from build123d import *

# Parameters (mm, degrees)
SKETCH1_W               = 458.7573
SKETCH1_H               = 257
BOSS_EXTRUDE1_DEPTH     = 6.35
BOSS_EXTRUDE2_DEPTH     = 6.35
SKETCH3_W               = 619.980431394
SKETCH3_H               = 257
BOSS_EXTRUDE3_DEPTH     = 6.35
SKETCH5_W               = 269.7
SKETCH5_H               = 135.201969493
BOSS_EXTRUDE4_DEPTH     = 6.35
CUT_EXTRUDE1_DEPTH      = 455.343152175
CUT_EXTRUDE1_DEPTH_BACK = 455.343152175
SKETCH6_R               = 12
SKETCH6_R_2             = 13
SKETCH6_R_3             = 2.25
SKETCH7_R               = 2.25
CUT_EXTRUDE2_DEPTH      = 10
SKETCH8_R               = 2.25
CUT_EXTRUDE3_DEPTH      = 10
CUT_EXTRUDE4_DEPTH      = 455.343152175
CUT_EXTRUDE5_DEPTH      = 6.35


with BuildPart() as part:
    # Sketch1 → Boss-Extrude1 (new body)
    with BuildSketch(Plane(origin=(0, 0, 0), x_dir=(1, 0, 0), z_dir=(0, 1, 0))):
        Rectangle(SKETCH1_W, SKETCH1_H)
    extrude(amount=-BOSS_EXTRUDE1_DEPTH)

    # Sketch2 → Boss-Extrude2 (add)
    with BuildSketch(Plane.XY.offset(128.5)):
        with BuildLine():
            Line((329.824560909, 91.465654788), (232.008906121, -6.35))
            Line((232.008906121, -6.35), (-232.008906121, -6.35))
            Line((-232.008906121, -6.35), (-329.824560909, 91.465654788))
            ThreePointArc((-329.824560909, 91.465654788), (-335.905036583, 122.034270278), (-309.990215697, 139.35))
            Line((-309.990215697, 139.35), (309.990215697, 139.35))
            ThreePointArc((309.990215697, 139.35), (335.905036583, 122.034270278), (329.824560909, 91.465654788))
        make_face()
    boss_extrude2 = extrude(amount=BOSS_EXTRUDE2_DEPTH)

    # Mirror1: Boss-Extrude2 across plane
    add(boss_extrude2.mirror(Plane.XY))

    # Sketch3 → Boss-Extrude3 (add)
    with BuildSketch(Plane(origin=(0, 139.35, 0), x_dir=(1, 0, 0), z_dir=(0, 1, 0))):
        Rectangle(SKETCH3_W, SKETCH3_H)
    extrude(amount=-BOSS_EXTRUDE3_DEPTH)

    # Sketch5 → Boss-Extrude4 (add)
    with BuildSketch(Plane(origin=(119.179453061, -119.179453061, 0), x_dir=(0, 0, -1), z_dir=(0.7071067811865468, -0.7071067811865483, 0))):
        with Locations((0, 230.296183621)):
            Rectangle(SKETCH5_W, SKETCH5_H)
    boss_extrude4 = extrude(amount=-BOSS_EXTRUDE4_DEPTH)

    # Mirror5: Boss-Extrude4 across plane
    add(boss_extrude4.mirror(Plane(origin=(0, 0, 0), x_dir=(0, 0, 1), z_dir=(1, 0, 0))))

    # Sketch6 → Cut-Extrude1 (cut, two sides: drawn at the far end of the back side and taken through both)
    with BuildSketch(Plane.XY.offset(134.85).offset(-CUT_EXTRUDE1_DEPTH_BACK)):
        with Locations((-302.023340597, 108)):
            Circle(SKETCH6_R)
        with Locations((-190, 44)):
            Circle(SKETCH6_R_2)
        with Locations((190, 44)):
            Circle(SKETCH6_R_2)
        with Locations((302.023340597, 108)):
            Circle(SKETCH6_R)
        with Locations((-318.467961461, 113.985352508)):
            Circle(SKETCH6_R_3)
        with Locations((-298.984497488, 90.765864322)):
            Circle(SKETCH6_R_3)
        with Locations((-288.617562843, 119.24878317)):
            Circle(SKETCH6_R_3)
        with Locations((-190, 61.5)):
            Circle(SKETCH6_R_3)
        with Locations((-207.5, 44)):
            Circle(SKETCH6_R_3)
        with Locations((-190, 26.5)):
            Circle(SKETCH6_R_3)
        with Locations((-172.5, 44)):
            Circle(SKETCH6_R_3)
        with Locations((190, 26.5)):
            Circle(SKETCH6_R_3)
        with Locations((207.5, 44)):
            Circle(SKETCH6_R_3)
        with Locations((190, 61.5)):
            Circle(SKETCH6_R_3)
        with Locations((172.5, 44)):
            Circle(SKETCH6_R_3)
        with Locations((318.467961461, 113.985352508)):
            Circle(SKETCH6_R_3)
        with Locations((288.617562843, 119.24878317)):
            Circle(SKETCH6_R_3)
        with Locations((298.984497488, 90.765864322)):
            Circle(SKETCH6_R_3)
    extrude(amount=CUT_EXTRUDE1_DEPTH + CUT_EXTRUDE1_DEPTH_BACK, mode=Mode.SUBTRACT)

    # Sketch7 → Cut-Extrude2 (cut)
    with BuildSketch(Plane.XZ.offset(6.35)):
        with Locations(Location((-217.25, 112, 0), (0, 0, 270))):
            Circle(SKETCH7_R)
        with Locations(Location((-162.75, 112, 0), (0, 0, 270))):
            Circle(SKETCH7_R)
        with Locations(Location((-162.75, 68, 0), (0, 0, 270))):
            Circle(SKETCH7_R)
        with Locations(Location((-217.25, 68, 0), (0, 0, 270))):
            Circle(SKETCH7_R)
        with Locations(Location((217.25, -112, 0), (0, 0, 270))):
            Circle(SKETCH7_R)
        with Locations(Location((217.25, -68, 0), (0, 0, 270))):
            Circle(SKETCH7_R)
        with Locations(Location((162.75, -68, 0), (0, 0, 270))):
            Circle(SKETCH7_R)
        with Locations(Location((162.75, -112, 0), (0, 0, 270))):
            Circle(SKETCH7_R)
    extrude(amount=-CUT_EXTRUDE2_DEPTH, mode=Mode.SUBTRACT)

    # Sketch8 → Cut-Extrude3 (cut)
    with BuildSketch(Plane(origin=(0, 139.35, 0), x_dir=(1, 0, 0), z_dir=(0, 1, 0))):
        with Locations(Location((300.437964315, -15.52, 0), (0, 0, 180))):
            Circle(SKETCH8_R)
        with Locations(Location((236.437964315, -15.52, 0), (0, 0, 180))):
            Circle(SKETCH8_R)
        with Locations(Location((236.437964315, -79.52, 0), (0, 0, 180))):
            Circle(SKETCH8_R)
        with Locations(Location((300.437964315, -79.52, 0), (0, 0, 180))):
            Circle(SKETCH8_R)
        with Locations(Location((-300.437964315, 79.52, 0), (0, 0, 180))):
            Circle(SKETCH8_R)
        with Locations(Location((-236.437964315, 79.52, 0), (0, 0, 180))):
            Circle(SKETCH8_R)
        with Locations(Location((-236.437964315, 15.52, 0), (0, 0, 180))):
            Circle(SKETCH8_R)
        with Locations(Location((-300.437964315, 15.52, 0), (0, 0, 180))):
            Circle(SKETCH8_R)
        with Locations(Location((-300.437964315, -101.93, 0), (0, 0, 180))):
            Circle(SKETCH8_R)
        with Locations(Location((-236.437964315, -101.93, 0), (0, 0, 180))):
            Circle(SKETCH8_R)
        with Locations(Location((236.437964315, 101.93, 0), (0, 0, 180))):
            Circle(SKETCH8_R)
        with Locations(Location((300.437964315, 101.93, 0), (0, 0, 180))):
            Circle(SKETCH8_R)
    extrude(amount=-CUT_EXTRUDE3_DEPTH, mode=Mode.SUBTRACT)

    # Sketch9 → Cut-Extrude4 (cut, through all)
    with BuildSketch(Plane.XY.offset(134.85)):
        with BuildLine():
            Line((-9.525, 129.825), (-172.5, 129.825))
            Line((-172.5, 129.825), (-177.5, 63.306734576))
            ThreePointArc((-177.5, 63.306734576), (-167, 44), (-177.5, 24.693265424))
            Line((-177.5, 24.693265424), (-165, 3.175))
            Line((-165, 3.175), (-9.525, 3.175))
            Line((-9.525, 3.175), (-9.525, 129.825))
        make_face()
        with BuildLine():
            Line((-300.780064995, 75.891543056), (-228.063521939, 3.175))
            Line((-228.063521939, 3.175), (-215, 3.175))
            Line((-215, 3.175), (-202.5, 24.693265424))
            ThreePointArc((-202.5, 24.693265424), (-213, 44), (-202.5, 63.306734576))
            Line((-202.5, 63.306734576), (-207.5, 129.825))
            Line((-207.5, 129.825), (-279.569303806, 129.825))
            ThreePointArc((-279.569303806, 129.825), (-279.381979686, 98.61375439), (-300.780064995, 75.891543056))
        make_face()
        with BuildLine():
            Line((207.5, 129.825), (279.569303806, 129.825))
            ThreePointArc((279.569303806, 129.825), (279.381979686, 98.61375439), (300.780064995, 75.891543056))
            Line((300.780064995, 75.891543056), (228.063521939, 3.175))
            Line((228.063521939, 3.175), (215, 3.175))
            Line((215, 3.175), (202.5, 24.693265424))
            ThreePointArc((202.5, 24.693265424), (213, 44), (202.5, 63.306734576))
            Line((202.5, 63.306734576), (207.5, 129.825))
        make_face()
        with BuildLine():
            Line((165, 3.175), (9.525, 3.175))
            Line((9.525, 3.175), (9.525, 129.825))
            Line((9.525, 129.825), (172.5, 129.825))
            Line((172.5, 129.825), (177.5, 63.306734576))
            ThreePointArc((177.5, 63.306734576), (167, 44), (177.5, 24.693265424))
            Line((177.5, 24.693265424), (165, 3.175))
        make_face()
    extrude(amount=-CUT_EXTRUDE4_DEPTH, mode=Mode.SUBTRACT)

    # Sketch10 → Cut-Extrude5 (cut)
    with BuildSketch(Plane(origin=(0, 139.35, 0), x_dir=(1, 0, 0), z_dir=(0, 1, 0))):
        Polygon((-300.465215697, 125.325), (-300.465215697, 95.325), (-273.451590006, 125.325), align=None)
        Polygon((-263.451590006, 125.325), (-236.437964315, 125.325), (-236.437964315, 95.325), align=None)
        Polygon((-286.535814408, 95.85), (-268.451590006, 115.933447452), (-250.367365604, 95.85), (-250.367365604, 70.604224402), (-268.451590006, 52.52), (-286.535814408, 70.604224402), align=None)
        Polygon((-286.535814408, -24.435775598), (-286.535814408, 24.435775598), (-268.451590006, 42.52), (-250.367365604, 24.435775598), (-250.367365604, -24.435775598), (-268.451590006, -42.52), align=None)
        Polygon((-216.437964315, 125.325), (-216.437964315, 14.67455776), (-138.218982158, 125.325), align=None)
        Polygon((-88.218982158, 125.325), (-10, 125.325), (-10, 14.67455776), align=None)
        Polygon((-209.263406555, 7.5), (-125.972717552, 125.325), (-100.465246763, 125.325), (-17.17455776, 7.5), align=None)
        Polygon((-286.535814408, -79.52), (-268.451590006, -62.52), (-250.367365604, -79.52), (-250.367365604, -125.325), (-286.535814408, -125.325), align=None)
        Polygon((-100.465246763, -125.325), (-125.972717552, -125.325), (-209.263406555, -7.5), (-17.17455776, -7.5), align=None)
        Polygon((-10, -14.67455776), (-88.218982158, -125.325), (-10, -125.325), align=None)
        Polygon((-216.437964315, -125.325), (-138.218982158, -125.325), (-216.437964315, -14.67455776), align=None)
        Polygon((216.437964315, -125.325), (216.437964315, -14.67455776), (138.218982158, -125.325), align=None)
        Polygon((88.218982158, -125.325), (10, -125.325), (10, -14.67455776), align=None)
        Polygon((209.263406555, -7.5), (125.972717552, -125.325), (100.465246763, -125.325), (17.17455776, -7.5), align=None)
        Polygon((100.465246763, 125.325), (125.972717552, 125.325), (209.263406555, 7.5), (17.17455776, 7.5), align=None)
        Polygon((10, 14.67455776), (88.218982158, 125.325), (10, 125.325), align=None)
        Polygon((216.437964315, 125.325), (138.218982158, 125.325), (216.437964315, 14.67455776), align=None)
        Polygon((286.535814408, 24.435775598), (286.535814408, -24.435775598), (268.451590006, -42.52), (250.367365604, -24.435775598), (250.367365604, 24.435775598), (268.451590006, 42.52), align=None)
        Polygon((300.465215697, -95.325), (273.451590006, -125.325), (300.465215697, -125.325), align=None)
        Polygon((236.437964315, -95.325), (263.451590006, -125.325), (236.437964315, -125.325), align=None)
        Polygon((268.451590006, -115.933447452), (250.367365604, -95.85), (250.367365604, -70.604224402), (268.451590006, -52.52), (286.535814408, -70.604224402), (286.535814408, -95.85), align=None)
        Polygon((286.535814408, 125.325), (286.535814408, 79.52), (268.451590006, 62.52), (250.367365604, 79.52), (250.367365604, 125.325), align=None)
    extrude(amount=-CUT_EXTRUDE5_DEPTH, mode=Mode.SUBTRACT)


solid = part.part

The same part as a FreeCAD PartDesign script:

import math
import FreeCAD as App
import Part
import Sketcher

V = App.Vector


def add_polygon(sketch, points):
    """Adds a closed chain of lines whose ends are joined by coincident constraints."""
    first, n = sketch.GeometryCount, len(points)
    for a, b in zip(points, points[1:] + points[:1]):
        sketch.addGeometry(Part.LineSegment(App.Vector(*a, 0), App.Vector(*b, 0)), False)
    for i in range(n):
        sketch.addConstraint(Sketcher.Constraint("Coincident", first + i, 2, first + (i + 1) % n, 1))

doc = App.newDocument("Part")
body = doc.addObject("PartDesign::Body", "Body")

# Sketch on XZ plane
sketch1 = body.newObject("Sketcher::SketchObject", "Sketch")
sketch1.AttachmentSupport = (doc.getObject("XZ_Plane"), [""])
sketch1.MapMode = "FlatFace"
add_polygon(sketch1, [(-229, -128), (-229, 128), (229, 128), (229, -128)])  # lines 0-3
sketch1.addConstraint(Sketcher.Constraint("Vertical", 0))
sketch1.addConstraint(Sketcher.Constraint("Horizontal", 1))
sketch1.addConstraint(Sketcher.Constraint("Vertical", 2))
sketch1.addConstraint(Sketcher.Constraint("Horizontal", 3))
sketch1.addConstraint(Sketcher.Constraint("Symmetric", 0, 2, 2, 2, -1, 1))
sketch1.addConstraint(Sketcher.Constraint("DistanceY", 0, 1, 0, 2, 257.0))
sketch1.addConstraint(Sketcher.Constraint("DistanceX", 1, 1, 1, 2, 458.7573))
pad1 = body.newObject("PartDesign::Pad", "Pad")
pad1.Profile = sketch1
pad1.Length = 6.35

# Sketch on XY plane
sketch2 = body.newObject("Sketcher::SketchObject", "Sketch001")
sketch2.AttachmentSupport = (doc.getObject("XY_Plane"), [""])
sketch2.MapMode = "FlatFace"
sketch2.AttachmentOffset = App.Placement(V(0, 0, 128.5), App.Rotation())
sketch2.addGeometry(Part.LineSegment(V(232, -6, 0), V(330, 91, 0)), False)
sketch2.addGeometry(Part.ArcOfCircle(Part.Circle(V(310, 111, 0), V(0, 0, 1), 28), math.radians(-45), math.radians(90)), False)
sketch2.addGeometry(Part.LineSegment(V(310, 139, 0), V(-310, 139, 0)), False)
sketch2.addGeometry(Part.ArcOfCircle(Part.Circle(V(-310, 111, 0), V(0, 0, 1), 28), math.radians(90), math.radians(225)), False)
sketch2.addGeometry(Part.LineSegment(V(-330, 91, 0), V(-232, -6, 0)), False)
sketch2.addGeometry(Part.LineSegment(V(-232, -6, 0), V(232, -6, 0)), False)
sketch2.addConstraint(Sketcher.Constraint("Tangent", 0, 2, 1, 1))
sketch2.addConstraint(Sketcher.Constraint("Tangent", 1, 2, 2, 1))
sketch2.addConstraint(Sketcher.Constraint("Tangent", 2, 2, 3, 1))
sketch2.addConstraint(Sketcher.Constraint("Tangent", 3, 2, 4, 1))
sketch2.addConstraint(Sketcher.Constraint("Coincident", 4, 2, 5, 1))
sketch2.addConstraint(Sketcher.Constraint("Coincident", 5, 2, 0, 1))
sketch2.addConstraint(Sketcher.Constraint("Horizontal", 2))
sketch2.addConstraint(Sketcher.Constraint("Horizontal", 5))
sketch2.addConstraint(Sketcher.Constraint("Equal", 1, 3))
sketch2.addConstraint(Sketcher.Constraint("Symmetric", 0, 2, 3, 2, -2))
sketch2.addConstraint(Sketcher.Constraint("Perpendicular", 0, 4))
sketch2.addConstraint(Sketcher.Constraint("Radius", 1, 28.05))
sketch2.addConstraint(Sketcher.Constraint("DistanceY", -1, 1, 1, 3, 111.3))
sketch2.addConstraint(Sketcher.Constraint("DistanceY", 4, 2, 2, 2, 145.7))
sketch2.addConstraint(Sketcher.Constraint("DistanceX", 2, 2, 2, 1, 619.980431))
pad2 = body.newObject("PartDesign::Pad", "Pad001")
pad2.Profile = sketch2
pad2.Length = 6.35
doc.recompute()

mirrored = body.newObject("PartDesign::Mirrored", "Mirrored")
mirrored.Originals = [pad2]
mirrored.MirrorPlane = (doc.getObject("XY_Plane"), [""])
body.Tip = mirrored

# Sketch on XZ plane
sketch3 = body.newObject("Sketcher::SketchObject", "Sketch002")
sketch3.AttachmentSupport = (doc.getObject("XZ_Plane"), [""])
sketch3.MapMode = "FlatFace"
sketch3.AttachmentOffset = App.Placement(V(0, 0, -139.35), App.Rotation())
add_polygon(sketch3, [(-310, -128), (-310, 128), (310, 128), (310, -128)])  # lines 0-3
sketch3.addConstraint(Sketcher.Constraint("Vertical", 0))
sketch3.addConstraint(Sketcher.Constraint("Horizontal", 1))
sketch3.addConstraint(Sketcher.Constraint("Vertical", 2))
sketch3.addConstraint(Sketcher.Constraint("Horizontal", 3))
sketch3.addConstraint(Sketcher.Constraint("Symmetric", 0, 2, 2, 2, -1, 1))
sketch3.addConstraint(Sketcher.Constraint("DistanceY", 0, 1, 0, 2, 257.0))
sketch3.addConstraint(Sketcher.Constraint("DistanceX", 1, 1, 1, 2, 619.980431))
pad3 = body.newObject("PartDesign::Pad", "Pad002")
pad3.Profile = sketch3
pad3.Length = 6.35

# Sketch on an angled plane
sketch4 = body.newObject("Sketcher::SketchObject", "Sketch003")
sketch4.Placement = App.Placement(V(119.179453, -119.179453, 0), App.Rotation(V(0, 0, -1), V(0.707106781, 0.707106781, 0), V(0.707106781, -0.707106781, 0), "ZXY"))
add_polygon(sketch4, [(-135, 298), (-135, 163), (135, 163), (135, 298)])  # lines 0-3
sketch4.addConstraint(Sketcher.Constraint("Vertical", 0))
sketch4.addConstraint(Sketcher.Constraint("Horizontal", 1))
sketch4.addConstraint(Sketcher.Constraint("Vertical", 2))
sketch4.addConstraint(Sketcher.Constraint("Horizontal", 3))
sketch4.addConstraint(Sketcher.Constraint("DistanceX", 1, 1, 1, 2, 269.7))
sketch4.addConstraint(Sketcher.Constraint("DistanceX", 0, 2, -1, 1, 134.85))
sketch4.addConstraint(Sketcher.Constraint("DistanceY", 0, 2, 0, 1, 135.201969))
sketch4.addConstraint(Sketcher.Constraint("DistanceY", -1, 1, 0, 2, 162.695199))
pad4 = body.newObject("PartDesign::Pad", "Pad003")
pad4.Profile = sketch4
pad4.Length = 6.35
pad4.Reversed = True
doc.recompute()

mirrored2 = body.newObject("PartDesign::Mirrored", "Mirrored001")
mirrored2.Originals = [pad4]
mirrored2.MirrorPlane = (doc.getObject("YZ_Plane"), [""])
body.Tip = mirrored2

# Sketch on XY plane
sketch5 = body.newObject("Sketcher::SketchObject", "Sketch004")
sketch5.AttachmentSupport = (doc.getObject("XY_Plane"), [""])
sketch5.MapMode = "FlatFace"
sketch5.AttachmentOffset = App.Placement(V(0, 0, 134.85), App.Rotation())
sketch5.addGeometry(Part.Circle(V(-302, 108, 0), V(0, 0, 1), 12), False)
sketch5.addGeometry(Part.Circle(V(-190, 44, 0), V(0, 0, 1), 13), False)
sketch5.addGeometry(Part.Circle(V(190, 44, 0), V(0, 0, 1), 13), False)
sketch5.addGeometry(Part.Circle(V(302, 108, 0), V(0, 0, 1), 12), False)
sketch5.addGeometry(Part.Circle(V(-318.5, 114, 0), V(0, 0, 1), 2.2), False)
sketch5.addGeometry(Part.Circle(V(-299, 90.8, 0), V(0, 0, 1), 2.2), False)
sketch5.addGeometry(Part.Circle(V(-288.6, 119.2, 0), V(0, 0, 1), 2.2), False)
sketch5.addGeometry(Part.Circle(V(-190, 61.5, 0), V(0, 0, 1), 2.2), False)
sketch5.addGeometry(Part.Circle(V(-207.5, 44, 0), V(0, 0, 1), 2.2), False)
sketch5.addGeometry(Part.Circle(V(-190, 26.5, 0), V(0, 0, 1), 2.2), False)
sketch5.addGeometry(Part.Circle(V(-172.5, 44, 0), V(0, 0, 1), 2.2), False)
sketch5.addGeometry(Part.Circle(V(190, 26.5, 0), V(0, 0, 1), 2.2), False)
sketch5.addGeometry(Part.Circle(V(207.5, 44, 0), V(0, 0, 1), 2.2), False)
sketch5.addGeometry(Part.Circle(V(190, 61.5, 0), V(0, 0, 1), 2.2), False)
sketch5.addGeometry(Part.Circle(V(172.5, 44, 0), V(0, 0, 1), 2.2), False)
sketch5.addGeometry(Part.Circle(V(318.5, 114, 0), V(0, 0, 1), 2.2), False)
sketch5.addGeometry(Part.Circle(V(288.6, 119.2, 0), V(0, 0, 1), 2.2), False)
sketch5.addGeometry(Part.Circle(V(299, 90.8, 0), V(0, 0, 1), 2.2), False)
sketch5.addConstraint(Sketcher.Constraint("Equal", 1, 2))
sketch5.addConstraint(Sketcher.Constraint("Equal", 0, 3))
sketch5.addConstraint(Sketcher.Constraint("Equal", 4, 5))
sketch5.addConstraint(Sketcher.Constraint("Equal", 5, 6))
sketch5.addConstraint(Sketcher.Constraint("Equal", 6, 7))
sketch5.addConstraint(Sketcher.Constraint("Equal", 7, 8))
sketch5.addConstraint(Sketcher.Constraint("Equal", 8, 9))
sketch5.addConstraint(Sketcher.Constraint("Equal", 9, 10))
sketch5.addConstraint(Sketcher.Constraint("Equal", 10, 11))
sketch5.addConstraint(Sketcher.Constraint("Equal", 11, 12))
sketch5.addConstraint(Sketcher.Constraint("Equal", 12, 13))
sketch5.addConstraint(Sketcher.Constraint("Equal", 13, 14))
sketch5.addConstraint(Sketcher.Constraint("Equal", 14, 15))
sketch5.addConstraint(Sketcher.Constraint("Equal", 15, 16))
sketch5.addConstraint(Sketcher.Constraint("Equal", 16, 17))
sketch5.addConstraint(Sketcher.Constraint("Symmetric", 1, 3, 2, 3, -2))
sketch5.addConstraint(Sketcher.Constraint("Symmetric", 0, 3, 3, 3, -2))
sketch5.addConstraint(Sketcher.Constraint("Symmetric", 9, 3, 11, 3, -2))
sketch5.addConstraint(Sketcher.Constraint("Symmetric", 8, 3, 12, 3, -2))
sketch5.addConstraint(Sketcher.Constraint("Symmetric", 7, 3, 13, 3, -2))
sketch5.addConstraint(Sketcher.Constraint("Symmetric", 10, 3, 14, 3, -2))
sketch5.addConstraint(Sketcher.Constraint("Symmetric", 4, 3, 15, 3, -2))
sketch5.addConstraint(Sketcher.Constraint("Symmetric", 6, 3, 16, 3, -2))
sketch5.addConstraint(Sketcher.Constraint("Symmetric", 5, 3, 17, 3, -2))
sketch5.addConstraint(Sketcher.Constraint("Horizontal", 2, 3, 8, 3))
sketch5.addConstraint(Sketcher.Constraint("Horizontal", 8, 3, 10, 3))
sketch5.addConstraint(Sketcher.Constraint("Vertical", 1, 3, 7, 3))
sketch5.addConstraint(Sketcher.Constraint("Vertical", 7, 3, 9, 3))
sketch5.addConstraint(Sketcher.Constraint("Diameter", 0, 24.0))
sketch5.addConstraint(Sketcher.Constraint("Diameter", 1, 26.0))
sketch5.addConstraint(Sketcher.Constraint("Diameter", 4, 4.5))
sketch5.addConstraint(Sketcher.Constraint("DistanceY", -1, 1, 0, 3, 108.0))
sketch5.addConstraint(Sketcher.Constraint("DistanceX", 1, 3, -1, 1, 190.0))
sketch5.addConstraint(Sketcher.Constraint("DistanceY", -1, 1, 1, 3, 44.0))
sketch5.addConstraint(Sketcher.Constraint("DistanceY", 9, 3, 7, 3, 35.0))
sketch5.addConstraint(Sketcher.Constraint("DistanceX", 8, 3, 10, 3, 35.0))
sketch5.addConstraint(Sketcher.Constraint("DistanceX", 10, 3, 12, 3, 380.0))
sketch5.addConstraint(Sketcher.Constraint("DistanceY", -1, 1, 7, 3, 61.5))
sketch5.addConstraint(Sketcher.Constraint("DistanceX", 4, 3, 6, 3, 29.850399))
sketch5.addConstraint(Sketcher.Constraint("DistanceX", 0, 3, -1, 1, 302.023341))
sketch5.addConstraint(Sketcher.Constraint("DistanceX", 4, 3, -1, 1, 318.467961))
sketch5.addConstraint(Sketcher.Constraint("DistanceY", 5, 3, 4, 3, 23.219488))
sketch5.addConstraint(Sketcher.Constraint("DistanceX", 5, 3, 3, 3, 601.007838))
sketch5.addConstraint(Sketcher.Constraint("DistanceY", 4, 3, 6, 3, 5.263431))
sketch5.addConstraint(Sketcher.Constraint("DistanceY", -1, 1, 4, 3, 113.985353))
pocket1 = body.newObject("PartDesign::Pocket", "Pocket")
pocket1.Profile = sketch5
pocket1.Type = "ThroughAll"
pocket1.Midplane = True

# Sketch on XZ plane
sketch6 = body.newObject("Sketcher::SketchObject", "Sketch005")
sketch6.AttachmentSupport = (doc.getObject("XZ_Plane"), [""])
sketch6.MapMode = "FlatFace"
sketch6.AttachmentOffset = App.Placement(V(0, 0, 6.35), App.Rotation())
sketch6.addGeometry(Part.Circle(V(-217.2, 112, 0), V(0, 0, 1), 2.2), False)
sketch6.addGeometry(Part.Circle(V(-162.8, 112, 0), V(0, 0, 1), 2.2), False)
sketch6.addGeometry(Part.Circle(V(-162.8, 68, 0), V(0, 0, 1), 2.2), False)
sketch6.addGeometry(Part.Circle(V(-217.2, 68, 0), V(0, 0, 1), 2.2), False)
sketch6.addGeometry(Part.Circle(V(217.2, -112, 0), V(0, 0, 1), 2.2), False)
sketch6.addGeometry(Part.Circle(V(217.2, -68, 0), V(0, 0, 1), 2.2), False)
sketch6.addGeometry(Part.Circle(V(162.8, -68, 0), V(0, 0, 1), 2.2), False)
sketch6.addGeometry(Part.Circle(V(162.8, -112, 0), V(0, 0, 1), 2.2), False)
sketch6.addConstraint(Sketcher.Constraint("Equal", 0, 1))
sketch6.addConstraint(Sketcher.Constraint("Equal", 1, 2))
sketch6.addConstraint(Sketcher.Constraint("Equal", 2, 3))
sketch6.addConstraint(Sketcher.Constraint("Equal", 3, 4))
sketch6.addConstraint(Sketcher.Constraint("Equal", 4, 5))
sketch6.addConstraint(Sketcher.Constraint("Equal", 5, 6))
sketch6.addConstraint(Sketcher.Constraint("Equal", 6, 7))
sketch6.addConstraint(Sketcher.Constraint("Symmetric", 0, 3, 4, 3, -1, 1))
sketch6.addConstraint(Sketcher.Constraint("Symmetric", 3, 3, 5, 3, -1, 1))
sketch6.addConstraint(Sketcher.Constraint("Symmetric", 2, 3, 6, 3, -1, 1))
sketch6.addConstraint(Sketcher.Constraint("Symmetric", 1, 3, 7, 3, -1, 1))
sketch6.addConstraint(Sketcher.Constraint("Horizontal", 0, 3, 1, 3))
sketch6.addConstraint(Sketcher.Constraint("Horizontal", 2, 3, 3, 3))
sketch6.addConstraint(Sketcher.Constraint("Vertical", 1, 3, 2, 3))
sketch6.addConstraint(Sketcher.Constraint("Vertical", 0, 3, 3, 3))
sketch6.addConstraint(Sketcher.Constraint("Diameter", 0, 4.5))
sketch6.addConstraint(Sketcher.Constraint("DistanceY", -1, 1, 0, 3, 112.0))
sketch6.addConstraint(Sketcher.Constraint("DistanceY", -1, 1, 2, 3, 68.0))
sketch6.addConstraint(Sketcher.Constraint("DistanceX", 2, 3, 4, 3, 380.0))
sketch6.addConstraint(Sketcher.Constraint("DistanceX", 0, 3, 1, 3, 54.5))
pocket2 = body.newObject("PartDesign::Pocket", "Pocket001")
pocket2.Profile = sketch6
pocket2.Length = 10

# Sketch on XZ plane
sketch7 = body.newObject("Sketcher::SketchObject", "Sketch006")
sketch7.AttachmentSupport = (doc.getObject("XZ_Plane"), [""])
sketch7.MapMode = "FlatFace"
sketch7.AttachmentOffset = App.Placement(V(0, 0, -139.35), App.Rotation())
sketch7.addGeometry(Part.Circle(V(300.4, 15.5, 0), V(0, 0, 1), 2.2), False)
sketch7.addGeometry(Part.Circle(V(236.4, 15.5, 0), V(0, 0, 1), 2.2), False)
sketch7.addGeometry(Part.Circle(V(236.4, 79.5, 0), V(0, 0, 1), 2.2), False)
sketch7.addGeometry(Part.Circle(V(300.4, 79.5, 0), V(0, 0, 1), 2.2), False)
sketch7.addGeometry(Part.Circle(V(-300.4, -79.5, 0), V(0, 0, 1), 2.2), False)
sketch7.addGeometry(Part.Circle(V(-236.4, -79.5, 0), V(0, 0, 1), 2.2), False)
sketch7.addGeometry(Part.Circle(V(-236.4, -15.5, 0), V(0, 0, 1), 2.2), False)
sketch7.addGeometry(Part.Circle(V(-300.4, -15.5, 0), V(0, 0, 1), 2.2), False)
sketch7.addGeometry(Part.Circle(V(-300.4, 101.9, 0), V(0, 0, 1), 2.2), False)
sketch7.addGeometry(Part.Circle(V(-236.4, 101.9, 0), V(0, 0, 1), 2.2), False)
sketch7.addGeometry(Part.Circle(V(236.4, -101.9, 0), V(0, 0, 1), 2.2), False)
sketch7.addGeometry(Part.Circle(V(300.4, -101.9, 0), V(0, 0, 1), 2.2), False)
sketch7.addConstraint(Sketcher.Constraint("Equal", 0, 1))
sketch7.addConstraint(Sketcher.Constraint("Equal", 1, 2))
sketch7.addConstraint(Sketcher.Constraint("Equal", 2, 3))
sketch7.addConstraint(Sketcher.Constraint("Equal", 3, 4))
sketch7.addConstraint(Sketcher.Constraint("Equal", 4, 5))
sketch7.addConstraint(Sketcher.Constraint("Equal", 5, 6))
sketch7.addConstraint(Sketcher.Constraint("Equal", 6, 7))
sketch7.addConstraint(Sketcher.Constraint("Equal", 7, 8))
sketch7.addConstraint(Sketcher.Constraint("Equal", 8, 9))
sketch7.addConstraint(Sketcher.Constraint("Equal", 9, 10))
sketch7.addConstraint(Sketcher.Constraint("Equal", 10, 11))
sketch7.addConstraint(Sketcher.Constraint("Symmetric", 3, 3, 4, 3, -1, 1))
sketch7.addConstraint(Sketcher.Constraint("Symmetric", 2, 3, 5, 3, -1, 1))
sketch7.addConstraint(Sketcher.Constraint("Symmetric", 1, 3, 6, 3, -1, 1))
sketch7.addConstraint(Sketcher.Constraint("Symmetric", 0, 3, 7, 3, -1, 1))
sketch7.addConstraint(Sketcher.Constraint("Symmetric", 9, 3, 10, 3, -1, 1))
sketch7.addConstraint(Sketcher.Constraint("Symmetric", 8, 3, 11, 3, -1, 1))
sketch7.addConstraint(Sketcher.Constraint("Horizontal", 0, 3, 1, 3))
sketch7.addConstraint(Sketcher.Constraint("Horizontal", 2, 3, 3, 3))
sketch7.addConstraint(Sketcher.Constraint("Horizontal", 8, 3, 9, 3))
sketch7.addConstraint(Sketcher.Constraint("Vertical", 1, 3, 2, 3))
sketch7.addConstraint(Sketcher.Constraint("Vertical", 0, 3, 3, 3))
sketch7.addConstraint(Sketcher.Constraint("Vertical", 7, 3, 8, 3))
sketch7.addConstraint(Sketcher.Constraint("Vertical", 6, 3, 9, 3))
sketch7.addConstraint(Sketcher.Constraint("Diameter", 0, 4.5))
sketch7.addConstraint(Sketcher.Constraint("DistanceX", 1, 3, 0, 3, 64.0))
sketch7.addConstraint(Sketcher.Constraint("DistanceY", 1, 3, 2, 3, 64.0))
sketch7.addConstraint(Sketcher.Constraint("DistanceY", -1, 1, 0, 3, 15.52))
sketch7.addConstraint(Sketcher.Constraint("DistanceY", -1, 1, 8, 3, 101.93))
sketch7.addConstraint(Sketcher.Constraint("DistanceX", 4, 3, 1, 3, 536.875929))
pocket3 = body.newObject("PartDesign::Pocket", "Pocket002")
pocket3.Profile = sketch7
pocket3.Length = 10
pocket3.Reversed = True

# Sketch on XY plane
sketch8 = body.newObject("Sketcher::SketchObject", "Sketch007")
sketch8.AttachmentSupport = (doc.getObject("XY_Plane"), [""])
sketch8.MapMode = "FlatFace"
sketch8.AttachmentOffset = App.Placement(V(0, 0, 134.85), App.Rotation())
sketch8.addGeometry(Part.LineSegment(V(-10, 130, 0), V(-172, 130, 0)), False)
sketch8.addGeometry(Part.LineSegment(V(-172, 130, 0), V(-178, 63, 0)), False)
sketch8.addGeometry(Part.ArcOfCircle(Part.Circle(V(-190, 44, 0), V(0, 0, 1), 23), math.radians(-57), math.radians(57)), False)
sketch8.addGeometry(Part.LineSegment(V(-178, 25, 0), V(-165, 3, 0)), False)
sketch8.addGeometry(Part.LineSegment(V(-165, 3, 0), V(-10, 3, 0)), False)
sketch8.addGeometry(Part.LineSegment(V(-10, 3, 0), V(-10, 130, 0)), False)
sketch8.addGeometry(Part.LineSegment(V(-301, 76, 0), V(-228, 3, 0)), False)
sketch8.addGeometry(Part.LineSegment(V(-228, 3, 0), V(-215, 3, 0)), False)
sketch8.addGeometry(Part.LineSegment(V(-215, 3, 0), V(-202, 25, 0)), False)
sketch8.addGeometry(Part.ArcOfCircle(Part.Circle(V(-190, 44, 0), V(0, 0, 1), 23), math.radians(123), math.radians(237)), False)
sketch8.addGeometry(Part.LineSegment(V(-202, 63, 0), V(-208, 130, 0)), False)
sketch8.addGeometry(Part.LineSegment(V(-208, 130, 0), V(-280, 130, 0)), False)
sketch8.addGeometry(Part.ArcOfCircle(Part.Circle(V(-318, 114, 0), V(0, 0, 1), 42), math.radians(-65), math.radians(22)), False)
sketch8.addGeometry(Part.LineSegment(V(280, 130, 0), V(208, 130, 0)), False)
sketch8.addGeometry(Part.LineSegment(V(208, 130, 0), V(202, 63, 0)), False)
sketch8.addGeometry(Part.ArcOfCircle(Part.Circle(V(190, 44, 0), V(0, 0, 1), 23), math.radians(-57), math.radians(57)), False)
sketch8.addGeometry(Part.LineSegment(V(202, 25, 0), V(215, 3, 0)), False)
sketch8.addGeometry(Part.LineSegment(V(215, 3, 0), V(228, 3, 0)), False)
sketch8.addGeometry(Part.LineSegment(V(228, 3, 0), V(301, 76, 0)), False)
sketch8.addGeometry(Part.ArcOfCircle(Part.Circle(V(318, 114, 0), V(0, 0, 1), 42), math.radians(158), math.radians(245)), False)
sketch8.addGeometry(Part.LineSegment(V(10, 3, 0), V(165, 3, 0)), False)
sketch8.addGeometry(Part.LineSegment(V(165, 3, 0), V(178, 25, 0)), False)
sketch8.addGeometry(Part.ArcOfCircle(Part.Circle(V(190, 44, 0), V(0, 0, 1), 23), math.radians(123), math.radians(237)), False)
sketch8.addGeometry(Part.LineSegment(V(178, 63, 0), V(172, 130, 0)), False)
sketch8.addGeometry(Part.LineSegment(V(172, 130, 0), V(10, 130, 0)), False)
sketch8.addGeometry(Part.LineSegment(V(10, 130, 0), V(10, 3, 0)), False)
sketch8.addConstraint(Sketcher.Constraint("Coincident", 0, 2, 1, 1))
sketch8.addConstraint(Sketcher.Constraint("Coincident", 1, 2, 2, 2))
sketch8.addConstraint(Sketcher.Constraint("Coincident", 2, 1, 3, 1))
sketch8.addConstraint(Sketcher.Constraint("Coincident", 3, 2, 4, 1))
sketch8.addConstraint(Sketcher.Constraint("Coincident", 4, 2, 5, 1))
sketch8.addConstraint(Sketcher.Constraint("Coincident", 5, 2, 0, 1))
sketch8.addConstraint(Sketcher.Constraint("Coincident", 6, 2, 7, 1))
sketch8.addConstraint(Sketcher.Constraint("Coincident", 7, 2, 8, 1))
sketch8.addConstraint(Sketcher.Constraint("Coincident", 8, 2, 9, 2))
sketch8.addConstraint(Sketcher.Constraint("Coincident", 9, 1, 10, 1))
sketch8.addConstraint(Sketcher.Constraint("Coincident", 10, 2, 11, 1))
sketch8.addConstraint(Sketcher.Constraint("Coincident", 11, 2, 12, 2))
sketch8.addConstraint(Sketcher.Constraint("Coincident", 12, 1, 6, 1))
sketch8.addConstraint(Sketcher.Constraint("Coincident", 13, 2, 14, 1))
sketch8.addConstraint(Sketcher.Constraint("Coincident", 14, 2, 15, 2))
sketch8.addConstraint(Sketcher.Constraint("Coincident", 15, 1, 16, 1))
sketch8.addConstraint(Sketcher.Constraint("Coincident", 16, 2, 17, 1))
sketch8.addConstraint(Sketcher.Constraint("Coincident", 17, 2, 18, 1))
sketch8.addConstraint(Sketcher.Constraint("Coincident", 18, 2, 19, 2))
sketch8.addConstraint(Sketcher.Constraint("Coincident", 19, 1, 13, 1))
sketch8.addConstraint(Sketcher.Constraint("Coincident", 20, 2, 21, 1))
sketch8.addConstraint(Sketcher.Constraint("Coincident", 21, 2, 22, 2))
sketch8.addConstraint(Sketcher.Constraint("Coincident", 22, 1, 23, 1))
sketch8.addConstraint(Sketcher.Constraint("Coincident", 23, 2, 24, 1))
sketch8.addConstraint(Sketcher.Constraint("Coincident", 24, 2, 25, 1))
sketch8.addConstraint(Sketcher.Constraint("Coincident", 25, 2, 20, 1))
sketch8.addConstraint(Sketcher.Constraint("Horizontal", 0))
sketch8.addConstraint(Sketcher.Constraint("Horizontal", 4))
sketch8.addConstraint(Sketcher.Constraint("Vertical", 5))
sketch8.addConstraint(Sketcher.Constraint("Horizontal", 7))
sketch8.addConstraint(Sketcher.Constraint("Horizontal", 11))
sketch8.addConstraint(Sketcher.Constraint("Horizontal", 13))
sketch8.addConstraint(Sketcher.Constraint("Horizontal", 17))
sketch8.addConstraint(Sketcher.Constraint("Horizontal", 20))
sketch8.addConstraint(Sketcher.Constraint("Horizontal", 24))
sketch8.addConstraint(Sketcher.Constraint("Vertical", 25))
sketch8.addConstraint(Sketcher.Constraint("Coincident", 9, 3, 2, 3))
sketch8.addConstraint(Sketcher.Constraint("Coincident", 22, 3, 15, 3))
sketch8.addConstraint(Sketcher.Constraint("Equal", 2, 9))
sketch8.addConstraint(Sketcher.Constraint("Equal", 9, 15))
sketch8.addConstraint(Sketcher.Constraint("Equal", 12, 19))
sketch8.addConstraint(Sketcher.Constraint("Equal", 15, 22))
sketch8.addConstraint(Sketcher.Constraint("Symmetric", 2, 3, 15, 3, -2))
sketch8.addConstraint(Sketcher.Constraint("Symmetric", 12, 3, 19, 3, -2))
sketch8.addConstraint(Sketcher.Constraint("Symmetric", 10, 2, 13, 2, -2))
sketch8.addConstraint(Sketcher.Constraint("Symmetric", 7, 2, 16, 2, -2))
sketch8.addConstraint(Sketcher.Constraint("Symmetric", 3, 2, 20, 2, -2))
sketch8.addConstraint(Sketcher.Constraint("Symmetric", 0, 2, 23, 2, -2))
sketch8.addConstraint(Sketcher.Constraint("Parallel", 1, 14))
sketch8.addConstraint(Sketcher.Constraint("Parallel", 3, 16))
sketch8.addConstraint(Sketcher.Constraint("Perpendicular", 6, 18))
sketch8.addConstraint(Sketcher.Constraint("Parallel", 8, 21))
sketch8.addConstraint(Sketcher.Constraint("Parallel", 10, 23))
sketch8.addConstraint(Sketcher.Constraint("Horizontal", 4, 2, 6, 2))
sketch8.addConstraint(Sketcher.Constraint("Horizontal", 2, 1, 8, 2))
sketch8.addConstraint(Sketcher.Constraint("Horizontal", 1, 2, 9, 1))
sketch8.addConstraint(Sketcher.Constraint("Horizontal", 5, 2, 10, 2))
sketch8.addConstraint(Sketcher.Constraint("Horizontal", 9, 1, 14, 2))
sketch8.addConstraint(Sketcher.Constraint("Horizontal", 8, 2, 15, 1))
sketch8.addConstraint(Sketcher.Constraint("Horizontal", 12, 1, 18, 2))
sketch8.addConstraint(Sketcher.Constraint("Vertical", 1, 2, 2, 1))
sketch8.addConstraint(Sketcher.Constraint("Equal", 7, 17))
sketch8.addConstraint(Sketcher.Constraint("Equal", 4, 20))
sketch8.addConstraint(Sketcher.Constraint("Radius", 2, 23.0))
sketch8.addConstraint(Sketcher.Constraint("Radius", 12, 42.0))
sketch8.addConstraint(Sketcher.Constraint("DistanceX", 2, 3, -1, 1, 190.0))
sketch8.addConstraint(Sketcher.Constraint("DistanceY", -1, 1, 2, 3, 44.0))
sketch8.addConstraint(Sketcher.Constraint("DistanceX", 3, 2, -1, 1, 165.0))
sketch8.addConstraint(Sketcher.Constraint("DistanceX", 1, 2, 0, 2, 5.0))
sketch8.addConstraint(Sketcher.Constraint("DistanceX", 8, 2, 2, 1, 25.0))
sketch8.addConstraint(Sketcher.Constraint("DistanceY", 5, 1, 5, 2, 126.65))
sketch8.addConstraint(Sketcher.Constraint("DistanceX", 0, 2, 0, 1, 162.975))
sketch8.addConstraint(Sketcher.Constraint("DistanceY", -1, 1, 0, 2, 129.825))
sketch8.addConstraint(Sketcher.Constraint("DistanceX", 7, 1, 7, 2, 13.063522))
sketch8.addConstraint(Sketcher.Constraint("Distance", 6, 102.836721))
sketch8.addConstraint(Sketcher.Constraint("DistanceX", 11, 2, 11, 1, 72.069304))
pocket4 = body.newObject("PartDesign::Pocket", "Pocket003")
pocket4.Profile = sketch8
pocket4.Type = "ThroughAll"

# Sketch on XZ plane
sketch9 = body.newObject("Sketcher::SketchObject", "Sketch008")
sketch9.AttachmentSupport = (doc.getObject("XZ_Plane"), [""])
sketch9.MapMode = "FlatFace"
sketch9.AttachmentOffset = App.Placement(V(0, 0, -139.35), App.Rotation())
add_polygon(sketch9, [(-300, -125), (-300, -95), (-273, -125)])  # lines 0-2
add_polygon(sketch9, [(-236, -125), (-263, -125), (-236, -95)])  # lines 3-5
add_polygon(sketch9, [(-268, -116), (-287, -96), (-287, -71), (-268, -53), (-250, -71), (-250, -96)])  # lines 6-11
add_polygon(sketch9, [(-287, -24), (-287, 24), (-268, 43), (-250, 24), (-250, -24), (-268, -43)])  # lines 12-17
add_polygon(sketch9, [(-216, -125), (-216, -15), (-138, -125)])  # lines 18-20
add_polygon(sketch9, [(-10, -125), (-88, -125), (-10, -15)])  # lines 21-23
add_polygon(sketch9, [(-126, -125), (-209, -8), (-17, -8), (-100, -125)])  # lines 24-27
add_polygon(sketch9, [(-268, 63), (-287, 80), (-287, 125), (-250, 125), (-250, 80)])  # lines 28-32
add_polygon(sketch9, [(-126, 125), (-100, 125), (-17, 8), (-209, 8)])  # lines 33-36
add_polygon(sketch9, [(-10, 15), (-88, 125), (-10, 125)])  # lines 37-39
add_polygon(sketch9, [(-216, 125), (-138, 125), (-216, 15)])  # lines 40-42
add_polygon(sketch9, [(216, 125), (216, 15), (138, 125)])  # lines 43-45
add_polygon(sketch9, [(10, 125), (88, 125), (10, 15)])  # lines 46-48
add_polygon(sketch9, [(126, 125), (209, 8), (17, 8), (100, 125)])  # lines 49-52
add_polygon(sketch9, [(126, -125), (100, -125), (17, -8), (209, -8)])  # lines 53-56
add_polygon(sketch9, [(10, -15), (88, -125), (10, -125)])  # lines 57-59
add_polygon(sketch9, [(216, -125), (138, -125), (216, -15)])  # lines 60-62
add_polygon(sketch9, [(287, 24), (287, -24), (268, -43), (250, -24), (250, 24), (268, 43)])  # lines 63-68
add_polygon(sketch9, [(300, 95), (273, 125), (300, 125)])  # lines 69-71
add_polygon(sketch9, [(263, 125), (236, 95), (236, 125)])  # lines 72-74
add_polygon(sketch9, [(250, 96), (268, 116), (287, 96), (287, 71), (268, 53), (250, 71)])  # lines 75-80
add_polygon(sketch9, [(287, -80), (287, -125), (250, -125), (250, -80), (268, -63)])  # lines 81-85
sketch9.addConstraint(Sketcher.Constraint("Vertical", 0))
sketch9.addConstraint(Sketcher.Constraint("Horizontal", 2))
sketch9.addConstraint(Sketcher.Constraint("Horizontal", 3))
sketch9.addConstraint(Sketcher.Constraint("Vertical", 5))
sketch9.addConstraint(Sketcher.Constraint("Vertical", 7))
sketch9.addConstraint(Sketcher.Constraint("Vertical", 10))
sketch9.addConstraint(Sketcher.Constraint("Vertical", 12))
sketch9.addConstraint(Sketcher.Constraint("Vertical", 15))
sketch9.addConstraint(Sketcher.Constraint("Vertical", 18))
sketch9.addConstraint(Sketcher.Constraint("Horizontal", 20))
sketch9.addConstraint(Sketcher.Constraint("Horizontal", 21))
sketch9.addConstraint(Sketcher.Constraint("Vertical", 23))
sketch9.addConstraint(Sketcher.Constraint("Horizontal", 25))
sketch9.addConstraint(Sketcher.Constraint("Horizontal", 27))
sketch9.addConstraint(Sketcher.Constraint("Vertical", 29))
sketch9.addConstraint(Sketcher.Constraint("Horizontal", 30))
sketch9.addConstraint(Sketcher.Constraint("Vertical", 31))
sketch9.addConstraint(Sketcher.Constraint("Horizontal", 33))
sketch9.addConstraint(Sketcher.Constraint("Horizontal", 35))
sketch9.addConstraint(Sketcher.Constraint("Horizontal", 38))
sketch9.addConstraint(Sketcher.Constraint("Vertical", 39))
sketch9.addConstraint(Sketcher.Constraint("Horizontal", 40))
sketch9.addConstraint(Sketcher.Constraint("Vertical", 42))
sketch9.addConstraint(Sketcher.Constraint("Vertical", 43))
sketch9.addConstraint(Sketcher.Constraint("Horizontal", 45))
sketch9.addConstraint(Sketcher.Constraint("Horizontal", 46))
sketch9.addConstraint(Sketcher.Constraint("Vertical", 48))
sketch9.addConstraint(Sketcher.Constraint("Horizontal", 50))
sketch9.addConstraint(Sketcher.Constraint("Horizontal", 52))
sketch9.addConstraint(Sketcher.Constraint("Horizontal", 53))
sketch9.addConstraint(Sketcher.Constraint("Horizontal", 55))
sketch9.addConstraint(Sketcher.Constraint("Horizontal", 58))
sketch9.addConstraint(Sketcher.Constraint("Vertical", 59))
sketch9.addConstraint(Sketcher.Constraint("Horizontal", 60))
sketch9.addConstraint(Sketcher.Constraint("Vertical", 62))
sketch9.addConstraint(Sketcher.Constraint("Vertical", 63))
sketch9.addConstraint(Sketcher.Constraint("Vertical", 66))
sketch9.addConstraint(Sketcher.Constraint("Horizontal", 70))
sketch9.addConstraint(Sketcher.Constraint("Vertical", 71))
sketch9.addConstraint(Sketcher.Constraint("Vertical", 73))
sketch9.addConstraint(Sketcher.Constraint("Horizontal", 74))
sketch9.addConstraint(Sketcher.Constraint("Vertical", 77))
sketch9.addConstraint(Sketcher.Constraint("Vertical", 80))
sketch9.addConstraint(Sketcher.Constraint("Vertical", 81))
sketch9.addConstraint(Sketcher.Constraint("Horizontal", 82))
sketch9.addConstraint(Sketcher.Constraint("Vertical", 83))
sketch9.addConstraint(Sketcher.Constraint("Symmetric", 18, 2, 43, 2, -1, 1))
sketch9.addConstraint(Sketcher.Constraint("Symmetric", 19, 2, 44, 2, -1, 1))
sketch9.addConstraint(Sketcher.Constraint("Symmetric", 21, 2, 46, 2, -1, 1))
sketch9.addConstraint(Sketcher.Constraint("Symmetric", 22, 2, 47, 2, -1, 1))
sketch9.addConstraint(Sketcher.Constraint("Symmetric", 24, 2, 49, 2, -1, 1))
sketch9.addConstraint(Sketcher.Constraint("Symmetric", 26, 2, 51, 2, -1, 1))
sketch9.addConstraint(Sketcher.Constraint("Symmetric", 33, 2, 53, 2, -1, 1))
sketch9.addConstraint(Sketcher.Constraint("Symmetric", 34, 2, 54, 2, -1, 1))
sketch9.addConstraint(Sketcher.Constraint("Symmetric", 37, 2, 57, 2, -1, 1))
sketch9.addConstraint(Sketcher.Constraint("Symmetric", 39, 2, 59, 2, -1, 1))
sketch9.addConstraint(Sketcher.Constraint("Symmetric", 40, 2, 60, 2, -1, 1))
sketch9.addConstraint(Sketcher.Constraint("Symmetric", 41, 2, 61, 2, -1, 1))
sketch9.addConstraint(Sketcher.Constraint("Symmetric", 12, 2, 63, 2, -1, 1))
sketch9.addConstraint(Sketcher.Constraint("Symmetric", 13, 2, 64, 2, -1, 1))
sketch9.addConstraint(Sketcher.Constraint("Symmetric", 14, 2, 65, 2, -1, 1))
sketch9.addConstraint(Sketcher.Constraint("Symmetric", 16, 2, 67, 2, -1, 1))
sketch9.addConstraint(Sketcher.Constraint("Symmetric", 1, 2, 69, 2, -1, 1))
sketch9.addConstraint(Sketcher.Constraint("Symmetric", 0, 2, 71, 2, -1, 1))
sketch9.addConstraint(Sketcher.Constraint("Symmetric", 4, 2, 72, 2, -1, 1))
sketch9.addConstraint(Sketcher.Constraint("Symmetric", 3, 2, 74, 2, -1, 1))
sketch9.addConstraint(Sketcher.Constraint("Symmetric", 11, 2, 75, 2, -1, 1))
sketch9.addConstraint(Sketcher.Constraint("Symmetric", 6, 2, 76, 2, -1, 1))
sketch9.addConstraint(Sketcher.Constraint("Symmetric", 8, 2, 78, 2, -1, 1))
sketch9.addConstraint(Sketcher.Constraint("Symmetric", 9, 2, 79, 2, -1, 1))
sketch9.addConstraint(Sketcher.Constraint("Symmetric", 29, 2, 81, 2, -1, 1))
sketch9.addConstraint(Sketcher.Constraint("Symmetric", 31, 2, 83, 2, -1, 1))
sketch9.addConstraint(Sketcher.Constraint("Symmetric", 32, 2, 84, 2, -1, 1))
sketch9.addConstraint(Sketcher.Constraint("Symmetric", 41, 2, 43, 2, -2))
sketch9.addConstraint(Sketcher.Constraint("Symmetric", 40, 2, 44, 2, -2))
sketch9.addConstraint(Sketcher.Constraint("Symmetric", 37, 2, 46, 2, -2))
sketch9.addConstraint(Sketcher.Constraint("Symmetric", 39, 2, 47, 2, -2))
sketch9.addConstraint(Sketcher.Constraint("Symmetric", 35, 2, 49, 2, -2))
sketch9.addConstraint(Sketcher.Constraint("Symmetric", 33, 2, 51, 2, -2))
sketch9.addConstraint(Sketcher.Constraint("Symmetric", 16, 2, 64, 2, -2))
sketch9.addConstraint(Sketcher.Constraint("Parallel", 1, 6))
sketch9.addConstraint(Sketcher.Constraint("Perpendicular", 8, 9))
sketch9.addConstraint(Sketcher.Constraint("Parallel", 4, 11))
sketch9.addConstraint(Sketcher.Constraint("Perpendicular", 9, 13))
sketch9.addConstraint(Sketcher.Constraint("Perpendicular", 13, 14))
sketch9.addConstraint(Sketcher.Constraint("Perpendicular", 14, 16))
sketch9.addConstraint(Sketcher.Constraint("Perpendicular", 16, 17))
sketch9.addConstraint(Sketcher.Constraint("Parallel", 19, 24))
sketch9.addConstraint(Sketcher.Constraint("Parallel", 22, 26))
sketch9.addConstraint(Sketcher.Constraint("Parallel", 24, 34))
sketch9.addConstraint(Sketcher.Constraint("Parallel", 26, 36))
sketch9.addConstraint(Sketcher.Constraint("Parallel", 34, 37))
sketch9.addConstraint(Sketcher.Constraint("Parallel", 44, 49))
sketch9.addConstraint(Sketcher.Constraint("Parallel", 47, 51))
sketch9.addConstraint(Sketcher.Constraint("Parallel", 51, 56))
sketch9.addConstraint(Sketcher.Constraint("Perpendicular", 65, 67))
sketch9.addConstraint(Sketcher.Constraint("Perpendicular", 67, 68))
sketch9.addConstraint(Sketcher.Constraint("Parallel", 72, 75))
sketch9.addConstraint(Sketcher.Constraint("Perpendicular", 68, 78))
sketch9.addConstraint(Sketcher.Constraint("Parallel", 28, 85))
sketch9.addConstraint(Sketcher.Constraint("Horizontal", 2, 2, 3, 2))
sketch9.addConstraint(Sketcher.Constraint("Horizontal", 0, 2, 4, 2))
sketch9.addConstraint(Sketcher.Constraint("Horizontal", 7, 2, 9, 2))
sketch9.addConstraint(Sketcher.Constraint("Horizontal", 6, 2, 10, 2))
sketch9.addConstraint(Sketcher.Constraint("Horizontal", 12, 2, 14, 2))
sketch9.addConstraint(Sketcher.Constraint("Horizontal", 15, 2, 17, 2))
sketch9.addConstraint(Sketcher.Constraint("Horizontal", 5, 2, 19, 2))
sketch9.addConstraint(Sketcher.Constraint("Horizontal", 20, 2, 21, 2))
sketch9.addConstraint(Sketcher.Constraint("Horizontal", 18, 2, 22, 2))
sketch9.addConstraint(Sketcher.Constraint("Horizontal", 23, 2, 26, 2))
sketch9.addConstraint(Sketcher.Constraint("Horizontal", 28, 2, 31, 2))
sketch9.addConstraint(Sketcher.Constraint("Horizontal", 30, 2, 33, 2))
sketch9.addConstraint(Sketcher.Constraint("Vertical", 8, 2, 11, 2))
sketch9.addConstraint(Sketcher.Constraint("Vertical", 7, 2, 12, 2))
sketch9.addConstraint(Sketcher.Constraint("Vertical", 11, 2, 13, 2))
sketch9.addConstraint(Sketcher.Constraint("Vertical", 17, 2, 28, 2))
sketch9.addConstraint(Sketcher.Constraint("Vertical", 15, 2, 30, 2))
sketch9.addConstraint(Sketcher.Constraint("Vertical", 16, 2, 32, 2))
sketch9.addConstraint(Sketcher.Constraint("Vertical", 49, 2, 55, 2))
sketch9.addConstraint(Sketcher.Constraint("DistanceY", 0, 1, 0, 2, 30.0))
sketch9.addConstraint(Sketcher.Constraint("DistanceX", 22, 2, -1, 1, 10.0))
sketch9.addConstraint(Sketcher.Constraint("DistanceY", 24, 2, -1, 1, 7.5))
sketch9.addConstraint(Sketcher.Constraint("DistanceY", 29, 1, 29, 2, 45.805))
sketch9.addConstraint(Sketcher.Constraint("DistanceY", 6, 2, -1, 1, 95.85))
sketch9.addConstraint(Sketcher.Constraint("DistanceY", 8, 2, -1, 1, 52.52))
sketch9.addConstraint(Sketcher.Constraint("DistanceY", -1, 1, 13, 2, 42.52))
sketch9.addConstraint(Sketcher.Constraint("DistanceY", -1, 1, 28, 2, 79.52))
sketch9.addConstraint(Sketcher.Constraint("DistanceY", -1, 1, 32, 2, 62.52))
sketch9.addConstraint(Sketcher.Constraint("DistanceX", 25, 1, 25, 2, 192.088849))
sketch9.addConstraint(Sketcher.Constraint("DistanceX", 27, 2, 27, 1, 25.507471))
sketch9.addConstraint(Sketcher.Constraint("DistanceX", 30, 1, 30, 2, 36.168449))
sketch9.addConstraint(Sketcher.Constraint("Distance", 1, 40.369989))
sketch9.addConstraint(Sketcher.Constraint("Distance", 19, 135.505459))
sketch9.addConstraint(Sketcher.Constraint("DistanceX", 1, 2, -1, 1, 273.45159))
sketch9.addConstraint(Sketcher.Constraint("DistanceX", 3, 2, -1, 1, 263.45159))
sketch9.addConstraint(Sketcher.Constraint("DistanceX", 8, 2, -1, 1, 268.45159))
sketch9.addConstraint(Sketcher.Constraint("DistanceX", 18, 2, -1, 1, 216.437964))
sketch9.addConstraint(Sketcher.Constraint("DistanceX", 24, 2, -1, 1, 209.263407))
pocket5 = body.newObject("PartDesign::Pocket", "Pocket004")
pocket5.Profile = sketch9
pocket5.Length = 6.35
pocket5.Reversed = True

doc.recompute()
